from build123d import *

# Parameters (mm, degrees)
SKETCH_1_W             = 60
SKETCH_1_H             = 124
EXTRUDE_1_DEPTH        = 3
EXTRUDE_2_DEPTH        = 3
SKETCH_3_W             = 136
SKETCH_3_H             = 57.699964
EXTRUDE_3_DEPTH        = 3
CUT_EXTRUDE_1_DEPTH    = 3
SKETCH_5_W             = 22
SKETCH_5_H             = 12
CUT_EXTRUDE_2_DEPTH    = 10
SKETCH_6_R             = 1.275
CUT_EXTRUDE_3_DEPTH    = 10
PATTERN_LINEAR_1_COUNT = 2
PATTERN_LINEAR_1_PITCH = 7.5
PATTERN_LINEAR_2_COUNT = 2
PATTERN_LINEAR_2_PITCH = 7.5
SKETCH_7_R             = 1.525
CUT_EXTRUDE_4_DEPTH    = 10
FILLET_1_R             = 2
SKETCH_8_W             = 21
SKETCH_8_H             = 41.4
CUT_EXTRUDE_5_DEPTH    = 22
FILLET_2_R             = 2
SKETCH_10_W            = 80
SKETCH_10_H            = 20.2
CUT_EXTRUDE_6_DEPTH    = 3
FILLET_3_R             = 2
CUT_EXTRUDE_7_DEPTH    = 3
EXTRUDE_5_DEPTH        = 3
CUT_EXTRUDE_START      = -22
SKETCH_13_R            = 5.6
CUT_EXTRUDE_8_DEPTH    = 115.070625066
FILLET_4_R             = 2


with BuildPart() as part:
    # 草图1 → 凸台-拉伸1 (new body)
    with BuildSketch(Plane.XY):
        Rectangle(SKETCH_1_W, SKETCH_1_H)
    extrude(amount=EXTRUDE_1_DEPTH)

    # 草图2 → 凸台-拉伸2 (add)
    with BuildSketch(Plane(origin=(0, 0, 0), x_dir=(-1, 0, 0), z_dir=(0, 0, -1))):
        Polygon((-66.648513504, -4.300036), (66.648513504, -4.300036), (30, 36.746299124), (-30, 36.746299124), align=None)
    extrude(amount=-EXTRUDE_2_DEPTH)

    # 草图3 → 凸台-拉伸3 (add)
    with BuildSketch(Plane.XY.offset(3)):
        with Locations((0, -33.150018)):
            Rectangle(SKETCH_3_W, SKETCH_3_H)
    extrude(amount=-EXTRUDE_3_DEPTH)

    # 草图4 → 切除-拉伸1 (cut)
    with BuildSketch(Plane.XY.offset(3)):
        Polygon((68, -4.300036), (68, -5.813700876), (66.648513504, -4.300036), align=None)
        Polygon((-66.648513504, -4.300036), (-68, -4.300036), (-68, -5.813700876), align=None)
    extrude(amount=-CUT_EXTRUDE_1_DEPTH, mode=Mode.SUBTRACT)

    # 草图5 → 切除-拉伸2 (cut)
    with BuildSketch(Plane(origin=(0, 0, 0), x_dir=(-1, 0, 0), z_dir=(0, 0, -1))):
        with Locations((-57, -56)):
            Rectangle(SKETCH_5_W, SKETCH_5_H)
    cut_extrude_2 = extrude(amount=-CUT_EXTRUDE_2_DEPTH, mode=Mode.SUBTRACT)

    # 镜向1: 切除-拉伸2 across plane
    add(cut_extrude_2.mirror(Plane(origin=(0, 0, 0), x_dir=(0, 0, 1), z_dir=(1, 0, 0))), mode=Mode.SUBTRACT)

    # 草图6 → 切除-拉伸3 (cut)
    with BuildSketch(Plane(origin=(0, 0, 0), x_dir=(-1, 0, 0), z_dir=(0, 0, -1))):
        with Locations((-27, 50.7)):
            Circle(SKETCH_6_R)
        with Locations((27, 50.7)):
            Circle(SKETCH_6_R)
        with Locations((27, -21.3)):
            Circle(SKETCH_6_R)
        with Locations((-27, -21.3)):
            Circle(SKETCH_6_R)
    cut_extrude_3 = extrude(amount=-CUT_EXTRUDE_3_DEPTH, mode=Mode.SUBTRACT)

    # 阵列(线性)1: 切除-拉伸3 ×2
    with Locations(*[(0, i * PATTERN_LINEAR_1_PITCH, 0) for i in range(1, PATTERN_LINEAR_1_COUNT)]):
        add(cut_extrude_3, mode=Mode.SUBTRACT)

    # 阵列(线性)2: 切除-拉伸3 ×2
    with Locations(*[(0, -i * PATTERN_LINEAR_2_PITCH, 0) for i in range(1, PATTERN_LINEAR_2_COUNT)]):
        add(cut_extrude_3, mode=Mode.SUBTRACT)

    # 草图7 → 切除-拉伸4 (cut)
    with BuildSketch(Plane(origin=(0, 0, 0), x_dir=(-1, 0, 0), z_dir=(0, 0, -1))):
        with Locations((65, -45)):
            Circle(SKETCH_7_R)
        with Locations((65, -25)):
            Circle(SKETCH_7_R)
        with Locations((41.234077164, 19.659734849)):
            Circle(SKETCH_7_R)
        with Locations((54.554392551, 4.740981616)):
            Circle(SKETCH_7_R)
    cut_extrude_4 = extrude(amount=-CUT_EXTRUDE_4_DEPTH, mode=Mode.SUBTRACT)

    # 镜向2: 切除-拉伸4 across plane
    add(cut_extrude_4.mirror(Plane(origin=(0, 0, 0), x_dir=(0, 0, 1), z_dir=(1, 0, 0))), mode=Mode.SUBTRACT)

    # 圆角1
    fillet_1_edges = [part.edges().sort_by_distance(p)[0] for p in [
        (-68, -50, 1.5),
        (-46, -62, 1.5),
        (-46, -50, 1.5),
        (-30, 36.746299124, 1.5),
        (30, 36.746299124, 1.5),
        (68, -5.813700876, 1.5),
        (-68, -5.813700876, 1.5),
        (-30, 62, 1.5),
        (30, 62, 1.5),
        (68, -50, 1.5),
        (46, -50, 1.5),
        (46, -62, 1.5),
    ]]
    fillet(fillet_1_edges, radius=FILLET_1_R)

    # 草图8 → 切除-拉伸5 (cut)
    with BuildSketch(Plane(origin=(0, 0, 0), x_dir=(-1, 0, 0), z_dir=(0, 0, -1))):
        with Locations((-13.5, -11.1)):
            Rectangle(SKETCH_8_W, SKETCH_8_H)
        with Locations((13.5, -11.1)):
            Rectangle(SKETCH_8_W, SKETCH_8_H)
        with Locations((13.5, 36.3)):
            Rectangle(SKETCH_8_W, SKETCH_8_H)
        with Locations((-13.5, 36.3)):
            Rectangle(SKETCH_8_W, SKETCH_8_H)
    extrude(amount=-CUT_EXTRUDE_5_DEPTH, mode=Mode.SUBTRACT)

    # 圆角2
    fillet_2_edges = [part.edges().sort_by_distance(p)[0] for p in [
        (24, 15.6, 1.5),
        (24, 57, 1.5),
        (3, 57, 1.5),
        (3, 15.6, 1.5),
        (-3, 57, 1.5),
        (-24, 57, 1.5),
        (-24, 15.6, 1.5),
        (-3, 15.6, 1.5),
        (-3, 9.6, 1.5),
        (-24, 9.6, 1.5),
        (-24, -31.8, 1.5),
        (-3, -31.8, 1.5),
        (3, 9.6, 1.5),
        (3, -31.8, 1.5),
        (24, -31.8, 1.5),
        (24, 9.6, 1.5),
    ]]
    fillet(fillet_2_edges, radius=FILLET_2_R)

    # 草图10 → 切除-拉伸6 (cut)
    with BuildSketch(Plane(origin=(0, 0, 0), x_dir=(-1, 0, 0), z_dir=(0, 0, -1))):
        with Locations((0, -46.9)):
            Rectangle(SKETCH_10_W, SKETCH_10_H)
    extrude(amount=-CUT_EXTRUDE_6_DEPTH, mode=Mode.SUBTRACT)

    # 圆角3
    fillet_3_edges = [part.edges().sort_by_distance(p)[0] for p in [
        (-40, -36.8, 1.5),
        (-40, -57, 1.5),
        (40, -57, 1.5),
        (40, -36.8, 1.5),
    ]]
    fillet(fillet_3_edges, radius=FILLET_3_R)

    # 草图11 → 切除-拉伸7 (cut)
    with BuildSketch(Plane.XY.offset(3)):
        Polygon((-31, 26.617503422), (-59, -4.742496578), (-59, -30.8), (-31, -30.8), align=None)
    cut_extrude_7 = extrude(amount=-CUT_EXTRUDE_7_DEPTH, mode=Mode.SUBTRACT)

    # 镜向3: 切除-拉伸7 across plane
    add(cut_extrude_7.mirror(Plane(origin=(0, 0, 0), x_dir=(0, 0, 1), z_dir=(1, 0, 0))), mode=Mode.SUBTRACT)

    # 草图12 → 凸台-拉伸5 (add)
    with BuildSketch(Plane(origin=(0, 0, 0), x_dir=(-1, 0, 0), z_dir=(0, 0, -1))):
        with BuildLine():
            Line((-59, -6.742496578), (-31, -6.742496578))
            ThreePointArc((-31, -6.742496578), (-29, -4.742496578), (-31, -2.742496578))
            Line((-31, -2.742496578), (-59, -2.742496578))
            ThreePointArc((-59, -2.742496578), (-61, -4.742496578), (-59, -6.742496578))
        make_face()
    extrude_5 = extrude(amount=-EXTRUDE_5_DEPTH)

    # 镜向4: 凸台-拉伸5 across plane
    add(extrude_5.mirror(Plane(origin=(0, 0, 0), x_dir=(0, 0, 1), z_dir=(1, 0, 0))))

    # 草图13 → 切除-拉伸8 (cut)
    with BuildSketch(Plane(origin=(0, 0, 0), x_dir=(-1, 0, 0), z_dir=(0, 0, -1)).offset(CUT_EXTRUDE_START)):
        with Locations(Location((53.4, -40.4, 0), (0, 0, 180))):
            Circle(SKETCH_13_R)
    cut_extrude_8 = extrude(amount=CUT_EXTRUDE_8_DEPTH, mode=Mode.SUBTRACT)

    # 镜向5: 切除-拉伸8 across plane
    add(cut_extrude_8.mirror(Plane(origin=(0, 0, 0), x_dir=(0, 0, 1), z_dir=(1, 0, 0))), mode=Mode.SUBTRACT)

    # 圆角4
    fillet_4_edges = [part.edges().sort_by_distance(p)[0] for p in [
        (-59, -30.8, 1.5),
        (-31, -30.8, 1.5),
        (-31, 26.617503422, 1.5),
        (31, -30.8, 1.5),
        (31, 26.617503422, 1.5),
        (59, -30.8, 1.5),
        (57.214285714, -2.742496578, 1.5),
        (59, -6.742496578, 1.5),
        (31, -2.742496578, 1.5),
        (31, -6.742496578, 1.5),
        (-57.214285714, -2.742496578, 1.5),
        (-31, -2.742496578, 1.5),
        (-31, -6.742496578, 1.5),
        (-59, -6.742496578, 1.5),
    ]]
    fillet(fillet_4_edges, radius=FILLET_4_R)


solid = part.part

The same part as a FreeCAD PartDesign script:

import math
import FreeCAD as App
import Part
import Sketcher
from FreeCAD import Vector


def edges_at(feature, points):
    """Names of the edges that pass closest to the given points."""
    edges = feature.Shape.Edges
    near = lambda p: min(range(len(edges)), key=lambda i: edges[i].distToShape(Part.Vertex(*p))[0])
    return sorted({f"Edge{near(p) + 1}" for p in points})

doc = App.newDocument("Part")
body = doc.addObject("PartDesign::Body", "Body")

# Sketch on XY plane
sketch1 = body.newObject("Sketcher::SketchObject", "Sketch")
sketch1.AttachmentSupport = (doc.getObject("XY_Plane"), [""])
sketch1.MapMode = "FlatFace"
sketch1.addGeometry(Part.LineSegment(Vector(-30, 62, 0), Vector(-30, -62, 0)), False)
sketch1.addGeometry(Part.LineSegment(Vector(-30, -62, 0), Vector(30, -62, 0)), False)
sketch1.addGeometry(Part.LineSegment(Vector(30, -62, 0), Vector(30, 62, 0)), False)
sketch1.addGeometry(Part.LineSegment(Vector(30, 62, 0), Vector(-30, 62, 0)), False)
sketch1.addConstraint(Sketcher.Constraint("Coincident", 0, 2, 1, 1))
sketch1.addConstraint(Sketcher.Constraint("Coincident", 1, 2, 2, 1))
sketch1.addConstraint(Sketcher.Constraint("Coincident", 2, 2, 3, 1))
sketch1.addConstraint(Sketcher.Constraint("Coincident", 3, 2, 0, 1))
sketch1.addConstraint(Sketcher.Constraint("Vertical", 0))
sketch1.addConstraint(Sketcher.Constraint("Horizontal", 1))
sketch1.addConstraint(Sketcher.Constraint("Vertical", 2))
sketch1.addConstraint(Sketcher.Constraint("Horizontal", 3))
sketch1.addConstraint(Sketcher.Constraint("Symmetric", 0, 2, 2, 2, -1, 1))
sketch1.addConstraint(Sketcher.Constraint("DistanceX", 1, 1, 1, 2, 60.0))
sketch1.addConstraint(Sketcher.Constraint("DistanceY", 0, 2, 0, 1, 124.0))
pad1 = body.newObject("PartDesign::Pad", "Pad")
pad1.Profile = sketch1
pad1.Length = 3

# Sketch on XY plane
sketch2 = body.newObject("Sketcher::SketchObject", "Sketch001")
sketch2.AttachmentSupport = (doc.getObject("XY_Plane"), [""])
sketch2.MapMode = "FlatFace"
sketch2.addGeometry(Part.LineSegment(Vector(67, -4, 0), Vector(-67, -4, 0)), False)
sketch2.addGeometry(Part.LineSegment(Vector(-67, -4, 0), Vector(-30, 37, 0)), False)
sketch2.addGeometry(Part.LineSegment(Vector(-30, 37, 0), Vector(30, 37, 0)), False)
sketch2.addGeometry(Part.LineSegment(Vector(30, 37, 0), Vector(67, -4, 0)), False)
sketch2.addConstraint(Sketcher.Constraint("Coincident", 0, 2, 1, 1))
sketch2.addConstraint(Sketcher.Constraint("Coincident", 1, 2, 2, 1))
sketch2.addConstraint(Sketcher.Constraint("Coincident", 2, 2, 3, 1))
sketch2.addConstraint(Sketcher.Constraint("Coincident", 3, 2, 0, 1))
sketch2.addConstraint(Sketcher.Constraint("Horizontal", 0))
sketch2.addConstraint(Sketcher.Constraint("Horizontal", 2))
sketch2.addConstraint(Sketcher.Constraint("Equal", 1, 3))
sketch2.addConstraint(Sketcher.Constraint("DistanceX", 2, 1, 2, 2, 60.0))
sketch2.addConstraint(Sketcher.Constraint("DistanceX", 1, 2, -1, 1, 30.0))
sketch2.addConstraint(Sketcher.Constraint("DistanceY", -1, 1, 1, 2, 36.746299))
sketch2.addConstraint(Sketcher.Constraint("DistanceX", 0, 2, 0, 1, 133.297027))
sketch2.addConstraint(Sketcher.Constraint("Distance", 1, 55.026495))
pad2 = body.newObject("PartDesign::Pad", "Pad001")
pad2.Profile = sketch2
pad2.Length = 3

# Sketch on XY plane
sketch3 = body.newObject("Sketcher::SketchObject", "Sketch002")
sketch3.AttachmentSupport = (doc.getObject("XY_Plane"), [""])
sketch3.MapMode = "FlatFace"
sketch3.AttachmentOffset = App.Placement(Vector(0, 0, 3), App.Rotation())
sketch3.addGeometry(Part.LineSegment(Vector(-68, -4, 0), Vector(-68, -62, 0)), False)
sketch3.addGeometry(Part.LineSegment(Vector(-68, -62, 0), Vector(68, -62, 0)), False)
sketch3.addGeometry(Part.LineSegment(Vector(68, -62, 0), Vector(68, -4, 0)), False)
sketch3.addGeometry(Part.LineSegment(Vector(68, -4, 0), Vector(-68, -4, 0)), False)
sketch3.addConstraint(Sketcher.Constraint("Coincident", 0, 2, 1, 1))
sketch3.addConstraint(Sketcher.Constraint("Coincident", 1, 2, 2, 1))
sketch3.addConstraint(Sketcher.Constraint("Coincident", 2, 2, 3, 1))
sketch3.addConstraint(Sketcher.Constraint("Coincident", 3, 2, 0, 1))
sketch3.addConstraint(Sketcher.Constraint("Vertical", 0))
sketch3.addConstraint(Sketcher.Constraint("Horizontal", 1))
sketch3.addConstraint(Sketcher.Constraint("Vertical", 2))
sketch3.addConstraint(Sketcher.Constraint("Horizontal", 3))
sketch3.addConstraint(Sketcher.Constraint("DistanceX", 1, 1, 1, 2, 136.0))
sketch3.addConstraint(Sketcher.Constraint("DistanceX", 0, 2, -1, 1, 68.0))
sketch3.addConstraint(Sketcher.Constraint("DistanceY", 0, 2, -1, 1, 62.0))
sketch3.addConstraint(Sketcher.Constraint("DistanceY", 0, 2, 0, 1, 57.699964))
pad3 = body.newObject("PartDesign::Pad", "Pad002")
pad3.Profile = sketch3
pad3.Length = 3
pad3.Reversed = True

# Sketch on XY plane
sketch4 = body.newObject("Sketcher::SketchObject", "Sketch003")
sketch4.AttachmentSupport = (doc.getObject("XY_Plane"), [""])
sketch4.MapMode = "FlatFace"
sketch4.AttachmentOffset = App.Placement(Vector(0, 0, 3), App.Rotation())
sketch4.addGeometry(Part.LineSegment(Vector(68, -5.8, 0), Vector(68, -4.3, 0)), False)
sketch4.addGeometry(Part.LineSegment(Vector(68, -4.3, 0), Vector(66.6, -4.3, 0)), False)
sketch4.addGeometry(Part.LineSegment(Vector(66.6, -4.3, 0), Vector(68, -5.8, 0)), False)
sketch4.addGeometry(Part.LineSegment(Vector(-66.6, -4.3, 0), Vector(-68, -4.3, 0)), False)
sketch4.addGeometry(Part.LineSegment(Vector(-68, -4.3, 0), Vector(-68, -5.8, 0)), False)
sketch4.addGeometry(Part.LineSegment(Vector(-68, -5.8, 0), Vector(-66.6, -4.3, 0)), False)
sketch4.addConstraint(Sketcher.Constraint("Coincident", 0, 2, 1, 1))
sketch4.addConstraint(Sketcher.Constraint("Coincident", 1, 2, 2, 1))
sketch4.addConstraint(Sketcher.Constraint("Coincident", 2, 2, 0, 1))
sketch4.addConstraint(Sketcher.Constraint("Coincident", 3, 2, 4, 1))
sketch4.addConstraint(Sketcher.Constraint("Coincident", 4, 2, 5, 1))
sketch4.addConstraint(Sketcher.Constraint("Coincident", 5, 2, 3, 1))
sketch4.addConstraint(Sketcher.Constraint("Vertical", 0))
sketch4.addConstraint(Sketcher.Constraint("Horizontal", 1))
sketch4.addConstraint(Sketcher.Constraint("Horizontal", 3))
sketch4.addConstraint(Sketcher.Constraint("Vertical", 4))
sketch4.addConstraint(Sketcher.Constraint("Symmetric", 0, 2, 3, 2, -2))
sketch4.addConstraint(Sketcher.Constraint("Horizontal", 2, 2, 4, 2))
sketch4.addConstraint(Sketcher.Constraint("Equal", 1, 3))
sketch4.addConstraint(Sketcher.Constraint("DistanceX", -1, 1, 0, 2, 68.0))
sketch4.addConstraint(Sketcher.Constraint("DistanceY", 2, 2, -1, 1, 5.813701))
sketch4.addConstraint(Sketcher.Constraint("Distance", 2, 2.029211))
sketch4.addConstraint(Sketcher.Constraint("DistanceX", 1, 2, 1, 1, 1.351486))
pocket1 = body.newObject("PartDesign::Pocket", "Pocket")
pocket1.Profile = sketch4
pocket1.Length = 3

# Sketch on XY plane
sketch5 = body.newObject("Sketcher::SketchObject", "Sketch004")
sketch5.AttachmentSupport = (doc.getObject("XY_Plane"), [""])
sketch5.MapMode = "FlatFace"
sketch5.addGeometry(Part.LineSegment(Vector(68, -50, 0), Vector(68, -62, 0)), False)
sketch5.addGeometry(Part.LineSegment(Vector(68, -62, 0), Vector(46, -62, 0)), False)
sketch5.addGeometry(Part.LineSegment(Vector(46, -62, 0), Vector(46, -50, 0)), False)
sketch5.addGeometry(Part.LineSegment(Vector(46, -50, 0), Vector(68, -50, 0)), False)
sketch5.addConstraint(Sketcher.Constraint("Coincident", 0, 2, 1, 1))
sketch5.addConstraint(Sketcher.Constraint("Coincident", 1, 2, 2, 1))
sketch5.addConstraint(Sketcher.Constraint("Coincident", 2, 2, 3, 1))
sketch5.addConstraint(Sketcher.Constraint("Coincident", 3, 2, 0, 1))
sketch5.addConstraint(Sketcher.Constraint("Vertical", 0))
sketch5.addConstraint(Sketcher.Constraint("Horizontal", 1))
sketch5.addConstraint(Sketcher.Constraint("Vertical", 2))
sketch5.addConstraint(Sketcher.Constraint("Horizontal", 3))
sketch5.addConstraint(Sketcher.Constraint("DistanceX", 1, 2, 1, 1, 22.0))
sketch5.addConstraint(Sketcher.Constraint("DistanceY", 0, 2, 0, 1, 12.0))
sketch5.addConstraint(Sketcher.Constraint("DistanceX", -1, 1, 0, 2, 68.0))
sketch5.addConstraint(Sketcher.Constraint("DistanceY", 0, 2, -1, 1, 62.0))
pocket2 = body.newObject("PartDesign::Pocket", "Pocket001")
pocket2.Profile = sketch5
pocket2.Length = 10
pocket2.Reversed = True
doc.recompute()

mirrored = body.newObject("PartDesign::Mirrored", "Mirrored")
mirrored.Originals = [pocket2]
mirrored.MirrorPlane = (doc.getObject("YZ_Plane"), [""])
body.Tip = mirrored

# Sketch on XY plane
sketch6 = body.newObject("Sketcher::SketchObject", "Sketch005")
sketch6.AttachmentSupport = (doc.getObject("XY_Plane"), [""])
sketch6.MapMode = "FlatFace"
sketch6.addGeometry(Part.Circle(Vector(27, 50.7, 0), Vector(0, 0, 1), 1.3), False)
sketch6.addGeometry(Part.Circle(Vector(-27, 50.7, 0), Vector(0, 0, 1), 1.3), False)
sketch6.addGeometry(Part.Circle(Vector(-27, -21.3, 0), Vector(0, 0, 1), 1.3), False)
sketch6.addGeometry(Part.Circle(Vector(27, -21.3, 0), Vector(0, 0, 1), 1.3), False)
sketch6.addConstraint(Sketcher.Constraint("Equal", 0, 1))
sketch6.addConstraint(Sketcher.Constraint("Equal", 1, 2))
sketch6.addConstraint(Sketcher.Constraint("Equal", 2, 3))
sketch6.addConstraint(Sketcher.Constraint("Symmetric", 0, 3, 1, 3, -2))
sketch6.addConstraint(Sketcher.Constraint("Symmetric", 2, 3, 3, 3, -2))
sketch6.addConstraint(Sketcher.Constraint("Vertical", 1, 3, 2, 3))
sketch6.addConstraint(Sketcher.Constraint("Diameter", 0, 2.55))
sketch6.addConstraint(Sketcher.Constraint("DistanceX", -1, 1, 0, 3, 27.0))
sketch6.addConstraint(Sketcher.Constraint("DistanceY", 2, 3, 1, 3, 72.0))
sketch6.addConstraint(Sketcher.Constraint("DistanceY", -1, 1, 0, 3, 50.7))
pocket3 = body.newObject("PartDesign::Pocket", "Pocket002")
pocket3.Profile = sketch6
pocket3.Length = 10
pocket3.Reversed = True
doc.recompute()

linearpattern = body.newObject("PartDesign::LinearPattern", "LinearPattern")
linearpattern.Originals = [pocket3]
linearpattern.Direction = (doc.getObject("Y_Axis"), [""])
linearpattern.Mode = "offset"
linearpattern.Offset = 7.5
linearpattern.Occurrences = 2
body.Tip = linearpattern
doc.recompute()

linearpattern2 = body.newObject("PartDesign::LinearPattern", "LinearPattern001")
linearpattern2.Originals = [pocket3]
linearpattern2.Direction = (doc.getObject("Y_Axis"), [""])
linearpattern2.Mode = "offset"
linearpattern2.Offset = 7.5
linearpattern2.Occurrences = 2
linearpattern2.Reversed = True
body.Tip = linearpattern2

# Sketch on XY plane
sketch7 = body.newObject("Sketcher::SketchObject", "Sketch006")
sketch7.AttachmentSupport = (doc.getObject("XY_Plane"), [""])
sketch7.MapMode = "FlatFace"
sketch7.addGeometry(Part.Circle(Vector(-65, -45, 0), Vector(0, 0, 1), 1.5), False)
sketch7.addGeometry(Part.Circle(Vector(-65, -25, 0), Vector(0, 0, 1), 1.5), False)
sketch7.addGeometry(Part.Circle(Vector(-41.2, 19.7, 0), Vector(0, 0, 1), 1.5), False)
sketch7.addGeometry(Part.Circle(Vector(-54.6, 4.7, 0), Vector(0, 0, 1), 1.5), False)
sketch7.addConstraint(Sketcher.Constraint("Equal", 0, 1))
sketch7.addConstraint(Sketcher.Constraint("Equal", 1, 2))
sketch7.addConstraint(Sketcher.Constraint("Equal", 2, 3))
sketch7.addConstraint(Sketcher.Constraint("Vertical", 0, 3, 1, 3))
sketch7.addConstraint(Sketcher.Constraint("Diameter", 0, 3.05))
sketch7.addConstraint(Sketcher.Constraint("DistanceX", 0, 3, -1, 1, 65.0))
sketch7.addConstraint(Sketcher.Constraint("DistanceY", 0, 3, -1, 1, 45.0))
sketch7.addConstraint(Sketcher.Constraint("DistanceY", 1, 3, -1, 1, 25.0))
sketch7.addConstraint(Sketcher.Constraint("DistanceY", -1, 1, 3, 3, 4.740982))
sketch7.addConstraint(Sketcher.Constraint("DistanceX", 2, 3, -1, 1, 41.234077))
sketch7.addConstraint(Sketcher.Constraint("DistanceY", -1, 1, 2, 3, 19.659735))
sketch7.addConstraint(Sketcher.Constraint("DistanceX", 3, 3, -1, 1, 54.554393))
pocket4 = body.newObject("PartDesign::Pocket", "Pocket003")
pocket4.Profile = sketch7
pocket4.Length = 10
pocket4.Reversed = True
doc.recompute()

mirrored2 = body.newObject("PartDesign::Mirrored", "Mirrored001")
mirrored2.Originals = [pocket4]
mirrored2.MirrorPlane = (doc.getObject("YZ_Plane"), [""])
body.Tip = mirrored2
doc.recompute()

fillet = body.newObject("PartDesign::Fillet", "Fillet")
fillet.Base = (mirrored2, edges_at(mirrored2, [
    (-68, -50, 1.5),
    (-46, -62, 1.5),
    (-46, -50, 1.5),
    (-30, 36.746, 1.5),
    (30, 36.746, 1.5),
    (68, -5.814, 1.5),
    (-68, -5.814, 1.5),
    (-30, 62, 1.5),
    (30, 62, 1.5),
    (68, -50, 1.5),
    (46, -50, 1.5),
    (46, -62, 1.5),
]))
fillet.Radius = 2

# Sketch on XY plane
sketch8 = body.newObject("Sketcher::SketchObject", "Sketch007")
sketch8.AttachmentSupport = (doc.getObject("XY_Plane"), [""])
sketch8.MapMode = "FlatFace"
sketch8.addGeometry(Part.LineSegment(Vector(24, 10, 0), Vector(24, -32, 0)), False)
sketch8.addGeometry(Part.LineSegment(Vector(24, -32, 0), Vector(3, -32, 0)), False)
sketch8.addGeometry(Part.LineSegment(Vector(3, -32, 0), Vector(3, 10, 0)), False)
sketch8.addGeometry(Part.LineSegment(Vector(3, 10, 0), Vector(24, 10, 0)), False)
sketch8.addGeometry(Part.LineSegment(Vector(-3, 10, 0), Vector(-3, -32, 0)), False)
sketch8.addGeometry(Part.LineSegment(Vector(-3, -32, 0), Vector(-24, -32, 0)), False)
sketch8.addGeometry(Part.LineSegment(Vector(-24, -32, 0), Vector(-24, 10, 0)), False)
sketch8.addGeometry(Part.LineSegment(Vector(-24, 10, 0), Vector(-3, 10, 0)), False)
sketch8.addGeometry(Part.LineSegment(Vector(-3, 57, 0), Vector(-3, 16, 0)), False)
sketch8.addGeometry(Part.LineSegment(Vector(-3, 16, 0), Vector(-24, 16, 0)), False)
sketch8.addGeometry(Part.LineSegment(Vector(-24, 16, 0), Vector(-24, 57, 0)), False)
sketch8.addGeometry(Part.LineSegment(Vector(-24, 57, 0), Vector(-3, 57, 0)), False)
sketch8.addGeometry(Part.LineSegment(Vector(24, 57, 0), Vector(24, 16, 0)), False)
sketch8.addGeometry(Part.LineSegment(Vector(24, 16, 0), Vector(3, 16, 0)), False)
sketch8.addGeometry(Part.LineSegment(Vector(3, 16, 0), Vector(3, 57, 0)), False)
sketch8.addGeometry(Part.LineSegment(Vector(3, 57, 0), Vector(24, 57, 0)), False)
sketch8.addConstraint(Sketcher.Constraint("Coincident", 0, 2, 1, 1))
sketch8.addConstraint(Sketcher.Constraint("Coincident", 1, 2, 2, 1))
sketch8.addConstraint(Sketcher.Constraint("Coincident", 2, 2, 3, 1))
sketch8.addConstraint(Sketcher.Constraint("Coincident", 3, 2, 0, 1))
sketch8.addConstraint(Sketcher.Constraint("Coincident", 4, 2, 5, 1))
sketch8.addConstraint(Sketcher.Constraint("Coincident", 5, 2, 6, 1))
sketch8.addConstraint(Sketcher.Constraint("Coincident", 6, 2, 7, 1))
sketch8.addConstraint(Sketcher.Constraint("Coincident", 7, 2, 4, 1))
sketch8.addConstraint(Sketcher.Constraint("Coincident", 8, 2, 9, 1))
sketch8.addConstraint(Sketcher.Constraint("Coincident", 9, 2, 10, 1))
sketch8.addConstraint(Sketcher.Constraint("Coincident", 10, 2, 11, 1))
sketch8.addConstraint(Sketcher.Constraint("Coincident", 11, 2, 8, 1))
sketch8.addConstraint(Sketcher.Constraint("Coincident", 12, 2, 13, 1))
sketch8.addConstraint(Sketcher.Constraint("Coincident", 13, 2, 14, 1))
sketch8.addConstraint(Sketcher.Constraint("Coincident", 14, 2, 15, 1))
sketch8.addConstraint(Sketcher.Constraint("Coincident", 15, 2, 12, 1))
sketch8.addConstraint(Sketcher.Constraint("Vertical", 0))
sketch8.addConstraint(Sketcher.Constraint("Horizontal", 1))
sketch8.addConstraint(Sketcher.Constraint("Vertical", 2))
sketch8.addConstraint(Sketcher.Constraint("Horizontal", 3))
sketch8.addConstraint(Sketcher.Constraint("Vertical", 4))
sketch8.addConstraint(Sketcher.Constraint("Horizontal", 5))
sketch8.addConstraint(Sketcher.Constraint("Vertical", 6))
sketch8.addConstraint(Sketcher.Constraint("Horizontal", 7))
sketch8.addConstraint(Sketcher.Constraint("Vertical", 8))
sketch8.addConstraint(Sketcher.Constraint("Horizontal", 9))
sketch8.addConstraint(Sketcher.Constraint("Vertical", 10))
sketch8.addConstraint(Sketcher.Constraint("Horizontal", 11))
sketch8.addConstraint(Sketcher.Constraint("Vertical", 12))
sketch8.addConstraint(Sketcher.Constraint("Horizontal", 13))
sketch8.addConstraint(Sketcher.Constraint("Vertical", 14))
sketch8.addConstraint(Sketcher.Constraint("Horizontal", 15))
sketch8.addConstraint(Sketcher.Constraint("Symmetric", 1, 2, 4, 2, -2))
sketch8.addConstraint(Sketcher.Constraint("Symmetric", 3, 2, 6, 2, -2))
sketch8.addConstraint(Sketcher.Constraint("Symmetric", 9, 2, 12, 2, -2))
sketch8.addConstraint(Sketcher.Constraint("Symmetric", 11, 2, 14, 2, -2))
sketch8.addConstraint(Sketcher.Constraint("Vertical", 7, 2, 8, 2))
sketch8.addConstraint(Sketcher.Constraint("Vertical", 6, 2, 9, 2))
sketch8.addConstraint(Sketcher.Constraint("Equal", 6, 8))
sketch8.addConstraint(Sketcher.Constraint("DistanceX", 1, 2, 1, 1, 21.0))
sketch8.addConstraint(Sketcher.Constraint("DistanceY", 0, 2, 0, 1, 41.4))
sketch8.addConstraint(Sketcher.Constraint("DistanceX", -1, 1, 0, 2, 24.0))
sketch8.addConstraint(Sketcher.Constraint("DistanceY", -1, 1, 10, 2, 57.0))
sketch8.addConstraint(Sketcher.Constraint("DistanceY", 7, 2, 8, 2, 6.0))
pocket5 = body.newObject("PartDesign::Pocket", "Pocket004")
pocket5.Profile = sketch8
pocket5.Length = 22
pocket5.Reversed = True
doc.recompute()

fillet2 = body.newObject("PartDesign::Fillet", "Fillet001")
fillet2.Base = (pocket5, edges_at(pocket5, [
    (24, 15.6, 1.5),
    (24, 57, 1.5),
    (3, 57, 1.5),
    (3, 15.6, 1.5),
    (-3, 57, 1.5),
    (-24, 57, 1.5),
    (-24, 15.6, 1.5),
    (-3, 15.6, 1.5),
    (-3, 9.6, 1.5),
    (-24, 9.6, 1.5),
    (-24, -31.8, 1.5),
    (-3, -31.8, 1.5),
    (3, 9.6, 1.5),
    (3, -31.8, 1.5),
    (24, -31.8, 1.5),
    (24, 9.6, 1.5),
]))
fillet2.Radius = 2

# Sketch on XY plane
sketch9 = body.newObject("Sketcher::SketchObject", "Sketch008")
sketch9.AttachmentSupport = (doc.getObject("XY_Plane"), [""])
sketch9.MapMode = "FlatFace"
sketch9.addGeometry(Part.LineSegment(Vector(40, -37, 0), Vector(40, -57, 0)), False)
sketch9.addGeometry(Part.LineSegment(Vector(40, -57, 0), Vector(-40, -57, 0)), False)
sketch9.addGeometry(Part.LineSegment(Vector(-40, -57, 0), Vector(-40, -37, 0)), False)
sketch9.addGeometry(Part.LineSegment(Vector(-40, -37, 0), Vector(40, -37, 0)), False)
sketch9.addConstraint(Sketcher.Constraint("Coincident", 0, 2, 1, 1))
sketch9.addConstraint(Sketcher.Constraint("Coincident", 1, 2, 2, 1))
sketch9.addConstraint(Sketcher.Constraint("Coincident", 2, 2, 3, 1))
sketch9.addConstraint(Sketcher.Constraint("Coincident", 3, 2, 0, 1))
sketch9.addConstraint(Sketcher.Constraint("Vertical", 0))
sketch9.addConstraint(Sketcher.Constraint("Horizontal", 1))
sketch9.addConstraint(Sketcher.Constraint("Vertical", 2))
sketch9.addConstraint(Sketcher.Constraint("Horizontal", 3))
sketch9.addConstraint(Sketcher.Constraint("DistanceX", 1, 2, 1, 1, 80.0))
sketch9.addConstraint(Sketcher.Constraint("DistanceY", 0, 2, 0, 1, 20.2))
sketch9.addConstraint(Sketcher.Constraint("DistanceX", -1, 1, 0, 2, 40.0))
sketch9.addConstraint(Sketcher.Constraint("DistanceY", 0, 2, -1, 1, 57.0))
pocket6 = body.newObject("PartDesign::Pocket", "Pocket005")
pocket6.Profile = sketch9
pocket6.Length = 3
pocket6.Reversed = True
doc.recompute()

fillet3 = body.newObject("PartDesign::Fillet", "Fillet002")
fillet3.Base = (pocket6, edges_at(pocket6, [
    (-40, -36.8, 1.5),
    (-40, -57, 1.5),
    (40, -57, 1.5),
    (40, -36.8, 1.5),
]))
fillet3.Radius = 2

# Sketch on XY plane
sketch10 = body.newObject("Sketcher::SketchObject", "Sketch009")
sketch10.AttachmentSupport = (doc.getObject("XY_Plane"), [""])
sketch10.MapMode = "FlatFace"
sketch10.AttachmentOffset = App.Placement(Vector(0, 0, 3), App.Rotation())
sketch10.addGeometry(Part.LineSegment(Vector(-31, 27, 0), Vector(-59, -5, 0)), False)
sketch10.addGeometry(Part.LineSegment(Vector(-59, -5, 0), Vector(-59, -31, 0)), False)
sketch10.addGeometry(Part.LineSegment(Vector(-59, -31, 0), Vector(-31, -31, 0)), False)
sketch10.addGeometry(Part.LineSegment(Vector(-31, -31, 0), Vector(-31, 27, 0)), False)
sketch10.addConstraint(Sketcher.Constraint("Coincident", 0, 2, 1, 1))
sketch10.addConstraint(Sketcher.Constraint("Coincident", 1, 2, 2, 1))
sketch10.addConstraint(Sketcher.Constraint("Coincident", 2, 2, 3, 1))
sketch10.addConstraint(Sketcher.Constraint("Coincident", 3, 2, 0, 1))
sketch10.addConstraint(Sketcher.Constraint("Vertical", 1))
sketch10.addConstraint(Sketcher.Constraint("Horizontal", 2))
sketch10.addConstraint(Sketcher.Constraint("Vertical", 3))
sketch10.addConstraint(Sketcher.Constraint("DistanceX", 2, 1, 2, 2, 28.0))
sketch10.addConstraint(Sketcher.Constraint("DistanceX", 0, 2, -1, 1, 59.0))
sketch10.addConstraint(Sketcher.Constraint("DistanceY", 1, 2, -1, 1, 30.8))
sketch10.addConstraint(Sketcher.Constraint("DistanceY", 0, 2, 3, 2, 31.36))
sketch10.addConstraint(Sketcher.Constraint("DistanceY", 1, 2, 1, 1, 26.057503))
pocket7 = body.newObject("PartDesign::Pocket", "Pocket006")
pocket7.Profile = sketch10
pocket7.Length = 3
doc.recompute()

mirrored3 = body.newObject("PartDesign::Mirrored", "Mirrored002")
mirrored3.Originals = [pocket7]
mirrored3.MirrorPlane = (doc.getObject("YZ_Plane"), [""])
body.Tip = mirrored3

# Sketch on XY plane
sketch11 = body.newObject("Sketcher::SketchObject", "Sketch010")
sketch11.AttachmentSupport = (doc.getObject("XY_Plane"), [""])
sketch11.MapMode = "FlatFace"
sketch11.addGeometry(Part.LineSegment(Vector(59, -6.7, 0), Vector(31, -6.7, 0)), False)
sketch11.addGeometry(Part.ArcOfCircle(Part.Circle(Vector(31, -4.7, 0), Vector(0, 0, 1), 2), math.radians(90), math.radians(270)), False)
sketch11.addGeometry(Part.LineSegment(Vector(31, -2.7, 0), Vector(59, -2.7, 0)), False)
sketch11.addGeometry(Part.ArcOfCircle(Part.Circle(Vector(59, -4.7, 0), Vector(0, 0, 1), 2), math.radians(-90), math.radians(90)), False)
sketch11.addConstraint(Sketcher.Constraint("Tangent", 0, 2, 1, 2))
sketch11.addConstraint(Sketcher.Constraint("Tangent", 1, 1, 2, 1))
sketch11.addConstraint(Sketcher.Constraint("Tangent", 2, 2, 3, 2))
sketch11.addConstraint(Sketcher.Constraint("Tangent", 3, 1, 0, 1))
sketch11.addConstraint(Sketcher.Constraint("Horizontal", 0))
sketch11.addConstraint(Sketcher.Constraint("Horizontal", 2))
sketch11.addConstraint(Sketcher.Constraint("Radius", 1, 2.0))
sketch11.addConstraint(Sketcher.Constraint("DistanceX", 0, 2, 0, 1, 28.0))
sketch11.addConstraint(Sketcher.Constraint("DistanceX", -1, 1, 1, 3, 31.0))
sketch11.addConstraint(Sketcher.Constraint("DistanceY", 1, 3, -1, 1, 4.742497))
pad4 = body.newObject("PartDesign::Pad", "Pad003")
pad4.Profile = sketch11
pad4.Length = 3
doc.recompute()

mirrored4 = body.newObject("PartDesign::Mirrored", "Mirrored003")
mirrored4.Originals = [pad4]
mirrored4.MirrorPlane = (doc.getObject("YZ_Plane"), [""])
body.Tip = mirrored4

# Sketch on XY plane
sketch12 = body.newObject("Sketcher::SketchObject", "Sketch011")
sketch12.AttachmentSupport = (doc.getObject("XY_Plane"), [""])
sketch12.MapMode = "FlatFace"
sketch12.AttachmentOffset = App.Placement(Vector(0, 0, 22), App.Rotation())
sketch12.addGeometry(Part.Circle(Vector(-53, -40, 0), Vector(0, 0, 1), 6), False)
sketch12.addConstraint(Sketcher.Constraint("Diameter", 0, 11.2))
sketch12.addConstraint(Sketcher.Constraint("DistanceX", 0, 3, -1, 1, 53.4))
sketch12.addConstraint(Sketcher.Constraint("DistanceY", 0, 3, -1, 1, 40.4))
pocket8 = body.newObject("PartDesign::Pocket", "Pocket007")
pocket8.Profile = sketch12
pocket8.Length = 115.070625
doc.recompute()

mirrored5 = body.newObject("PartDesign::Mirrored", "Mirrored004")
mirrored5.Originals = [pocket8]
mirrored5.MirrorPlane = (doc.getObject("YZ_Plane"), [""])
body.Tip = mirrored5
doc.recompute()

fillet4 = body.newObject("PartDesign::Fillet", "Fillet003")
fillet4.Base = (mirrored5, edges_at(mirrored5, [
    (-59, -30.8, 1.5),
    (-31, -30.8, 1.5),
    (-31, 26.618, 1.5),
    (31, -30.8, 1.5),
    (31, 26.618, 1.5),
    (59, -30.8, 1.5),
    (57.214, -2.742, 1.5),
    (59, -6.742, 1.5),
    (31, -2.742, 1.5),
    (31, -6.742, 1.5),
    (-57.214, -2.742, 1.5),
    (-31, -2.742, 1.5),
    (-31, -6.742, 1.5),
    (-59, -6.742, 1.5),
]))
fillet4.Radius = 2

doc.recompute()
